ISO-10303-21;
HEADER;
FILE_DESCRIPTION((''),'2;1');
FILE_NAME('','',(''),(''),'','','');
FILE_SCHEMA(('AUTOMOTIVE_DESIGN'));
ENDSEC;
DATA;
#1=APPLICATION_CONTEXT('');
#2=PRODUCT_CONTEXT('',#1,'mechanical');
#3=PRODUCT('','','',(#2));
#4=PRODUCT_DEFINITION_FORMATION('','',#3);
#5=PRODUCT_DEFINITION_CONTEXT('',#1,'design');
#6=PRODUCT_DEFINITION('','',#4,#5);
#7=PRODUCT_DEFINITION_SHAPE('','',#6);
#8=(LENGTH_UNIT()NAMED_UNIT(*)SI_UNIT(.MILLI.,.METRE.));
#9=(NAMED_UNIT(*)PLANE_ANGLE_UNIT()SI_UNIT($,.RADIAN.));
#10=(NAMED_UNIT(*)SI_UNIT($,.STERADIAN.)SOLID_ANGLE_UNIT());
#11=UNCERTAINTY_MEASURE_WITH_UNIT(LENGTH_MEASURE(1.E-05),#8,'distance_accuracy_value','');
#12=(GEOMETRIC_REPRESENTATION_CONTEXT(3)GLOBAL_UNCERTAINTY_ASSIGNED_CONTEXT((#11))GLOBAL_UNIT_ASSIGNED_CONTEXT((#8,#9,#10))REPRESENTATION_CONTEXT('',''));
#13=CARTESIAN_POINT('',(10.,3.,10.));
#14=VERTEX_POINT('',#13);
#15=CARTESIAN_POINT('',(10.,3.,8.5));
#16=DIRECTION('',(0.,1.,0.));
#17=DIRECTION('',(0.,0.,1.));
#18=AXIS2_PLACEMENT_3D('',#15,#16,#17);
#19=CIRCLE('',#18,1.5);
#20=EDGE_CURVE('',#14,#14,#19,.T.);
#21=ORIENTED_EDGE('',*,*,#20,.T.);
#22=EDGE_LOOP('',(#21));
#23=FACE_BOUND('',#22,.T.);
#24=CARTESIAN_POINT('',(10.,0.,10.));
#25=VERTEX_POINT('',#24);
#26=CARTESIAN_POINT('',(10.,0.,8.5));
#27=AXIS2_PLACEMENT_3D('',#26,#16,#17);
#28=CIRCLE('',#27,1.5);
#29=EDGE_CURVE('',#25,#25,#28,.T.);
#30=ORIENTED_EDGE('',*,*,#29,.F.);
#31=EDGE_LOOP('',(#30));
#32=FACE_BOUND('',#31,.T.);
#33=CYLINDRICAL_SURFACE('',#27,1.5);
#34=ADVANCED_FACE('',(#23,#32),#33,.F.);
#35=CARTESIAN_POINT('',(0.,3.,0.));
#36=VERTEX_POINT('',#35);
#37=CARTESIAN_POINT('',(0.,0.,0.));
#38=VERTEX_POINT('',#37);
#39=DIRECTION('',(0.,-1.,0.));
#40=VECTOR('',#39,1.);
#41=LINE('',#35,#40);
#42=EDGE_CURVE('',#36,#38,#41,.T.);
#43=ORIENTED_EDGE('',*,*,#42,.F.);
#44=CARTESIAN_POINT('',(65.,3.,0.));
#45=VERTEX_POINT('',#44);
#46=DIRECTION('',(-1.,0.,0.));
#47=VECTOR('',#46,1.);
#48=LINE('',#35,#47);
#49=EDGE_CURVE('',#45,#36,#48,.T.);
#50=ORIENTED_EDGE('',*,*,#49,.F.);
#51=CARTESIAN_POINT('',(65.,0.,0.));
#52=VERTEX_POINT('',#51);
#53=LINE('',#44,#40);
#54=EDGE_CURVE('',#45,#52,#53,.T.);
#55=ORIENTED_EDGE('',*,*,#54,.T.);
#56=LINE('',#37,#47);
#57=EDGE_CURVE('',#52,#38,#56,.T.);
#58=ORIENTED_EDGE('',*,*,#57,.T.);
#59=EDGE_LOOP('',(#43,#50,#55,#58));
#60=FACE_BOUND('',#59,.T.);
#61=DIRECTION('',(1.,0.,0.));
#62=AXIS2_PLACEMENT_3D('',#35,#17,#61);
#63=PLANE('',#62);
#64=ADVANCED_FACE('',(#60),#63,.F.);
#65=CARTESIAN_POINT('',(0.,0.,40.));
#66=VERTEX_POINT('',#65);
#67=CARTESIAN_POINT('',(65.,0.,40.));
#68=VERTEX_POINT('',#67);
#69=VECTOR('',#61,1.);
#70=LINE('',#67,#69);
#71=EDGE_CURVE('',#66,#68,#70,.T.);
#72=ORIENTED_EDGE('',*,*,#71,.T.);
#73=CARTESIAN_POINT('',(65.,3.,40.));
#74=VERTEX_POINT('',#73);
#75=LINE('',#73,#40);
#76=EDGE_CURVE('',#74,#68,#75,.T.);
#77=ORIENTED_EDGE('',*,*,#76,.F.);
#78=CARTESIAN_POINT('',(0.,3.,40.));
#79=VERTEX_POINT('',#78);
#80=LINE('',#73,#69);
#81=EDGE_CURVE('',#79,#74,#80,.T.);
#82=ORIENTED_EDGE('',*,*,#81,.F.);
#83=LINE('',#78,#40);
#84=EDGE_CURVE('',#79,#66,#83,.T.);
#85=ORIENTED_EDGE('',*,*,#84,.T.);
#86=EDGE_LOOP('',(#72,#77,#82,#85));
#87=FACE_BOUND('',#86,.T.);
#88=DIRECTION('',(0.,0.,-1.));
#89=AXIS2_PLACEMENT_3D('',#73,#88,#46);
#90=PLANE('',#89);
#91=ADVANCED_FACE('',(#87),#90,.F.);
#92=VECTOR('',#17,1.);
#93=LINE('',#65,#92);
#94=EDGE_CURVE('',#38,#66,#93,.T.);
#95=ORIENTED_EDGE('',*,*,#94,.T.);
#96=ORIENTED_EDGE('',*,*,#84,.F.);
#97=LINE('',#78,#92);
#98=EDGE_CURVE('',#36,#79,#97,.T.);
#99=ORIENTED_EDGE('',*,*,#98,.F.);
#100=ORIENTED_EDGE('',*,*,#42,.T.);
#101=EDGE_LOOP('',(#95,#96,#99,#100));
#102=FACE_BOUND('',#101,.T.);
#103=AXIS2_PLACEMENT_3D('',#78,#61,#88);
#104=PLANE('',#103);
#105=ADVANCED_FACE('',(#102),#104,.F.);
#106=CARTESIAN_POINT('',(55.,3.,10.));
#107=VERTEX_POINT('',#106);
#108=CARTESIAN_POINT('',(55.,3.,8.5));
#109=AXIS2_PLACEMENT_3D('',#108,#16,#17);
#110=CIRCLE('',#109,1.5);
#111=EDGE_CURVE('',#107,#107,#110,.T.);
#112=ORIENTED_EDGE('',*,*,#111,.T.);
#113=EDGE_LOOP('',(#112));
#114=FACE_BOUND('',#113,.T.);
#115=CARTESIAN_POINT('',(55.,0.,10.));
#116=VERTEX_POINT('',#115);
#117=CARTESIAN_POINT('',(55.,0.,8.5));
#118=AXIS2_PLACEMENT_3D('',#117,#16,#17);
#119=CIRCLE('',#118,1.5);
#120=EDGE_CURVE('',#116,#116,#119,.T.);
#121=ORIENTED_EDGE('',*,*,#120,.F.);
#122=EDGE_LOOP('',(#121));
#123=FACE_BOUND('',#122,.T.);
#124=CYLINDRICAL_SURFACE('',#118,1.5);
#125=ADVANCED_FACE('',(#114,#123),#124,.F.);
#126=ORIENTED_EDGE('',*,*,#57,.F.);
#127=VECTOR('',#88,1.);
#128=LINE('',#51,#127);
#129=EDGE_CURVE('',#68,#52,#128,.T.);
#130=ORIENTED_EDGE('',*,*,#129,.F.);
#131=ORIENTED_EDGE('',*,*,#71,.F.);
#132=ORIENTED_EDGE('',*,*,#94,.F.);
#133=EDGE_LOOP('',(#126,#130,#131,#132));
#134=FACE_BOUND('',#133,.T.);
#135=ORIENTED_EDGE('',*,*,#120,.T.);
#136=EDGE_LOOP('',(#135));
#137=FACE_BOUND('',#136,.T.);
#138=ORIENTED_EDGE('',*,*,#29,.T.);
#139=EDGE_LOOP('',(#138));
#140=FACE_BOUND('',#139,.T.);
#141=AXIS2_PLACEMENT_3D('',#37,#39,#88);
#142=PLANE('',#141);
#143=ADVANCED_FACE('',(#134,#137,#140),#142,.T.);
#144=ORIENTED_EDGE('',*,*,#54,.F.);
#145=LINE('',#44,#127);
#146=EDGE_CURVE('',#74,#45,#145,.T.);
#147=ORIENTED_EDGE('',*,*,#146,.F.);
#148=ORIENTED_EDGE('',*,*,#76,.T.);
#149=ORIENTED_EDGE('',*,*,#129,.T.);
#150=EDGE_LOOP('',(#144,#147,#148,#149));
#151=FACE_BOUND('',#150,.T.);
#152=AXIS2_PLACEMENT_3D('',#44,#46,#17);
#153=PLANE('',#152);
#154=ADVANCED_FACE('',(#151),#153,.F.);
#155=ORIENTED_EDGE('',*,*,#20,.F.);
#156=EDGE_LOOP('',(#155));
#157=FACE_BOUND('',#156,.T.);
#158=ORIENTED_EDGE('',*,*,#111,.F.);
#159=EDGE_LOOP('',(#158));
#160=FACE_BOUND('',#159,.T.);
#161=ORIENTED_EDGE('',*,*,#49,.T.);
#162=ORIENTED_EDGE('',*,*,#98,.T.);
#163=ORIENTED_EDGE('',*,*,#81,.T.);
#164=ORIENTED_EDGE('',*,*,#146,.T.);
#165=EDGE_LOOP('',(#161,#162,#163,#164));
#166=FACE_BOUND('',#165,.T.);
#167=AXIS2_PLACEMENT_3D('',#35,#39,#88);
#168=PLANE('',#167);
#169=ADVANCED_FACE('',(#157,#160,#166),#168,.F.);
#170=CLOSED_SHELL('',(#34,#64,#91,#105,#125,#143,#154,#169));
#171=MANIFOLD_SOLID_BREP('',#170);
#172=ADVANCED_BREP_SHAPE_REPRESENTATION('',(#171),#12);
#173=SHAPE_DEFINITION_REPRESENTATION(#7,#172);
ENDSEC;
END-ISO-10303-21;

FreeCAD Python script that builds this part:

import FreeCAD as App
import Part
import Sketcher

V = App.Vector
Q = App.Units.Quantity

doc = App.newDocument("Part")
body = doc.addObject("PartDesign::Body", "Body")

# Sketch on XZ plane
sketch1 = body.newObject("Sketcher::SketchObject", "Sketch")
sketch1.AttachmentSupport = (doc.getObject("XZ_Plane"), [""])
sketch1.MapMode = "FlatFace"
sketch1.addGeometry([
    Part.LineSegment(V(0, 0, 0), V(0, 40, 0)),
    Part.LineSegment(V(0, 40, 0), V(65, 40, 0)),
    Part.LineSegment(V(65, 40, 0), V(65, 0, 0)),
    Part.LineSegment(V(65, 0, 0), V(0, 0, 0)),
], False)
sketch1.addConstraint([
    Sketcher.Constraint("Coincident", 0, 2, 1, 1),
    Sketcher.Constraint("Coincident", 1, 2, 2, 1),
    Sketcher.Constraint("Coincident", 2, 2, 3, 1),
    Sketcher.Constraint("Coincident", 3, 2, 0, 1),
    Sketcher.Constraint("Vertical", 0),
    Sketcher.Constraint("Horizontal", 1),
    Sketcher.Constraint("Vertical", 2),
    Sketcher.Constraint("Horizontal", 3),
    Sketcher.Constraint("Coincident", 3, 2, -1, 1),
    Sketcher.Constraint("DistanceX", 1, 1, 1, 2, Q("65 mm")),
    Sketcher.Constraint("DistanceY", 0, 1, 0, 2, Q("40 mm")),
])
pad1 = body.newObject("PartDesign::Pad", "Pad")
pad1.Profile = sketch1
pad1.Length = 3
pad1.Reversed = True

# Sketch on XZ plane
sketch2 = body.newObject("Sketcher::SketchObject", "Sketch001")
sketch2.AttachmentSupport = (doc.getObject("XZ_Plane"), [""])
sketch2.MapMode = "FlatFace"
sketch2.AttachmentOffset = App.Placement(V(0, 0, -3), App.Rotation())
sketch2.addGeometry([
    Part.Circle(V(10, 8.5, 0), V(0, 0, 1), 1.5),
    Part.Circle(V(55, 8.5, 0), V(0, 0, 1), 1.5),
], False)
sketch2.addConstraint([
    Sketcher.Constraint("Equal", 0, 1),
    Sketcher.Constraint("Horizontal", 0, 3, 1, 3),
    Sketcher.Constraint("Diameter", 0, Q("3 mm")),
    Sketcher.Constraint("DistanceX", -1, 1, 0, 3, Q("10 mm")),
    Sketcher.Constraint("DistanceX", -1, 1, 1, 3, Q("55 mm")),
    Sketcher.Constraint("DistanceY", -1, 1, 0, 3, Q("8.5 mm")),
])
pocket1 = body.newObject("PartDesign::Pocket", "Pocket")
pocket1.Profile = sketch2
pocket1.Length = 3
pocket1.Reversed = True

doc.recompute()
